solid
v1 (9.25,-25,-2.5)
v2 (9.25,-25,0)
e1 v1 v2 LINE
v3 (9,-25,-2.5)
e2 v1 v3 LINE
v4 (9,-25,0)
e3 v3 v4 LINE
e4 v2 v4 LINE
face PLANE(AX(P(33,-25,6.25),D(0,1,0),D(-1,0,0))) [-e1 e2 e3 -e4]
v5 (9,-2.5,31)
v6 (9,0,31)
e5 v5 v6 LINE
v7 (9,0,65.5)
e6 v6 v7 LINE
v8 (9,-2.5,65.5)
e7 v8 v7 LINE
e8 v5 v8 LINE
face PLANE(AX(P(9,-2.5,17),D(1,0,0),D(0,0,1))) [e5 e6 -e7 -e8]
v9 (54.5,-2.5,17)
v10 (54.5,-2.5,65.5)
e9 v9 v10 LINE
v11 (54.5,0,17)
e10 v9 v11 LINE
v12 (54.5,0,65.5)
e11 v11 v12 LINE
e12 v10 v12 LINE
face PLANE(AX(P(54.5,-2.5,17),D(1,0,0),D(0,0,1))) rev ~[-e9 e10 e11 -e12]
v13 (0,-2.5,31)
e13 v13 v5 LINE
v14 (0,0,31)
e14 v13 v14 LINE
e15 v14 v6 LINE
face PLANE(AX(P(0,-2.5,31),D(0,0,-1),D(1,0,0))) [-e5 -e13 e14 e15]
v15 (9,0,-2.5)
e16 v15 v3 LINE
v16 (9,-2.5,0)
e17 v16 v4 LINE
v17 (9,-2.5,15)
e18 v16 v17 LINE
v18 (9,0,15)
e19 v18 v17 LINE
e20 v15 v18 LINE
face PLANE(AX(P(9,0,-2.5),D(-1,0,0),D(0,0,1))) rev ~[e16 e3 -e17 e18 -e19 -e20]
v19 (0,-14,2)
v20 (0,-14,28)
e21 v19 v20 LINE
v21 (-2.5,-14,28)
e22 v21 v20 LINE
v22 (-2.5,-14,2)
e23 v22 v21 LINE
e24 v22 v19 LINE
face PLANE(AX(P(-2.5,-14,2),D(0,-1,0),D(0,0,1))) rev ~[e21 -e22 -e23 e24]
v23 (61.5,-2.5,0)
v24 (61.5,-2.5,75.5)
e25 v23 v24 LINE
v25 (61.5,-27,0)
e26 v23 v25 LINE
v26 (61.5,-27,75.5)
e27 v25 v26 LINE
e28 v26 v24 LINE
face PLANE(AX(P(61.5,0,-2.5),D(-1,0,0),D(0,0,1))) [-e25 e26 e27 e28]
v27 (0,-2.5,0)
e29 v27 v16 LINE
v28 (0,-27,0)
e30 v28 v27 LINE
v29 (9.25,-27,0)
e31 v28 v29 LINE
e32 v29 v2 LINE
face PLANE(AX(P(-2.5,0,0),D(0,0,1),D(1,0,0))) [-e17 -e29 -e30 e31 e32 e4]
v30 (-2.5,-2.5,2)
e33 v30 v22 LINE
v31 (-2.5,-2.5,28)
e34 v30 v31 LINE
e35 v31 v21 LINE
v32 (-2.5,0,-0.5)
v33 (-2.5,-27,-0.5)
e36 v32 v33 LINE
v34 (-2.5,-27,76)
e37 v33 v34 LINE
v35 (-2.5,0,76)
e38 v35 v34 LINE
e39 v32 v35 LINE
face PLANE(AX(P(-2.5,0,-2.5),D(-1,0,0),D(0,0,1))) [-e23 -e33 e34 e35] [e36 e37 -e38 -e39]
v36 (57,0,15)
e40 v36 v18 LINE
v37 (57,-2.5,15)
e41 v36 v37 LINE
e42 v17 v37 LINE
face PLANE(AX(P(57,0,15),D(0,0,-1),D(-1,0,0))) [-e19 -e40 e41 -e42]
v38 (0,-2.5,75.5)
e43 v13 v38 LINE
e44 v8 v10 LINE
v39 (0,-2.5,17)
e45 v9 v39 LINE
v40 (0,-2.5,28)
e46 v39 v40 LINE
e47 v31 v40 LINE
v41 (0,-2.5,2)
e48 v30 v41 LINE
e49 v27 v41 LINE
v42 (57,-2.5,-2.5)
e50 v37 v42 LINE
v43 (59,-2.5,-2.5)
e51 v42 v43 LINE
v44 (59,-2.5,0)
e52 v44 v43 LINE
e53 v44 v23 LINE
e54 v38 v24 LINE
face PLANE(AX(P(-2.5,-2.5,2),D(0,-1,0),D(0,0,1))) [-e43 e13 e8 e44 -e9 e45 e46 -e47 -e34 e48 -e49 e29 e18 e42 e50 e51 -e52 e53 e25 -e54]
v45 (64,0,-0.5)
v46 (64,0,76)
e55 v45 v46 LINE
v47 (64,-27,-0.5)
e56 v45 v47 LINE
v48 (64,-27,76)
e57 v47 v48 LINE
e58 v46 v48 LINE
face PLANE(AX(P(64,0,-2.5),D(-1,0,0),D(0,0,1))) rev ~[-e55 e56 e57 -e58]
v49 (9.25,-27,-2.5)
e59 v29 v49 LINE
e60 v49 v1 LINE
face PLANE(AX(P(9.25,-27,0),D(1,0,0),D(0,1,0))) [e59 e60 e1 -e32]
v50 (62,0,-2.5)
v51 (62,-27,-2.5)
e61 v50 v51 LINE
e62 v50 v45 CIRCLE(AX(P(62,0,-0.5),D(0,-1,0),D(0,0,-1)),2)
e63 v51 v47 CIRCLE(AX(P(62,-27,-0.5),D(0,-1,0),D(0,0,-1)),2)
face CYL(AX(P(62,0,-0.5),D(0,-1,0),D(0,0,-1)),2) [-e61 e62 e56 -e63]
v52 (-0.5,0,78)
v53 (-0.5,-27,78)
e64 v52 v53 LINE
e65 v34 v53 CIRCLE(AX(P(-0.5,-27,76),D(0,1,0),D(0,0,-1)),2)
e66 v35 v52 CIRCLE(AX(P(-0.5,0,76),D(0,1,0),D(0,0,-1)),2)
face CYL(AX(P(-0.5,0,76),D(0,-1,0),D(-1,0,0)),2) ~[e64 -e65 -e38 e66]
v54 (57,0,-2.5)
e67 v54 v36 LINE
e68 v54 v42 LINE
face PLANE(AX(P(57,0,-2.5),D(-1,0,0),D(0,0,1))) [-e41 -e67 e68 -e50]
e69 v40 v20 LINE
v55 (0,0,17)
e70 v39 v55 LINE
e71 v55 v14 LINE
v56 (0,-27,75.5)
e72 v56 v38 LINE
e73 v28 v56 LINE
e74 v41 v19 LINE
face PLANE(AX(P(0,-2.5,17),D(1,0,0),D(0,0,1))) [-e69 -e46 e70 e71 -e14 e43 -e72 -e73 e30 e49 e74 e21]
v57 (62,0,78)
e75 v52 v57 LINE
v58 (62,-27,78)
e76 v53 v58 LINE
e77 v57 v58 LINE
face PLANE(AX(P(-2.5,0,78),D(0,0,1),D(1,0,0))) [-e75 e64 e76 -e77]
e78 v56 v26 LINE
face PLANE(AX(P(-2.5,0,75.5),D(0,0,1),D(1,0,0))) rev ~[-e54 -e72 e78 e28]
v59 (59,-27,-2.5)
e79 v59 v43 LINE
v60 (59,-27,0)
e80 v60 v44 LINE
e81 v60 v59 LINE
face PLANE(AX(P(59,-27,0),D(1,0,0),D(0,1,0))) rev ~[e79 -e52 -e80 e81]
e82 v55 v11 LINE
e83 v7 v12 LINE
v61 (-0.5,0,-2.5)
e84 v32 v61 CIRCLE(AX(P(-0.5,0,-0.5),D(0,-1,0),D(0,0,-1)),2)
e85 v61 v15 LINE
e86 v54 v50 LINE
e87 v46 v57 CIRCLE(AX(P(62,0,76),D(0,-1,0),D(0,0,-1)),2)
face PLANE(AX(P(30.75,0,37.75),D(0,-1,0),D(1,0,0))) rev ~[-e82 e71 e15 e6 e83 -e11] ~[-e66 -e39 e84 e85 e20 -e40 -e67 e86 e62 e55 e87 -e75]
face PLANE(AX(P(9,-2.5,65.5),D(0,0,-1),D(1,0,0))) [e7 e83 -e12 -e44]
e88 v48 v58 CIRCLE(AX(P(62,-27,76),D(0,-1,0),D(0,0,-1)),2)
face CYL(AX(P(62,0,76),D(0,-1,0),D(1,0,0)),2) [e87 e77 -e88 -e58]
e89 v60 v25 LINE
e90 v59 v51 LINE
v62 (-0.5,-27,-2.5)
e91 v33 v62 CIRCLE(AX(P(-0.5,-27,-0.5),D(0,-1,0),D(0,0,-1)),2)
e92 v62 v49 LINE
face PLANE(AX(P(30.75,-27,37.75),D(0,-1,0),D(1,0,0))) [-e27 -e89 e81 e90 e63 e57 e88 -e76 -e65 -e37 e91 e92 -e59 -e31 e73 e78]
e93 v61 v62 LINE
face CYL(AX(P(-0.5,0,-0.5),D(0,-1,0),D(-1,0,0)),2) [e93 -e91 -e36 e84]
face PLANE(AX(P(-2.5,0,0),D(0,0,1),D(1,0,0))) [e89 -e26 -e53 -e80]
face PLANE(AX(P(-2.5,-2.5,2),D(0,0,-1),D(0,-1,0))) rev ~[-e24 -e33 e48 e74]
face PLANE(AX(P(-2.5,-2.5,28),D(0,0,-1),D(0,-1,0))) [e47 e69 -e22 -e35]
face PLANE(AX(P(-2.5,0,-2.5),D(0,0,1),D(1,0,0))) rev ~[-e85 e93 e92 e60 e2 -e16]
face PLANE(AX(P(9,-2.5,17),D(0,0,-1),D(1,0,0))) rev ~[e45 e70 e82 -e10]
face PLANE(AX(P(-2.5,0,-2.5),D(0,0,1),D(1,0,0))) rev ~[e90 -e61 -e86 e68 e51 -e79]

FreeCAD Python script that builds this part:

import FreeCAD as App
import Part
import Sketcher

V = App.Vector
Q = App.Units.Quantity


def edges_at(feature, points):
    """Names of the edges that pass closest to the given points."""
    edges = feature.Shape.Edges
    near = lambda p: min(range(len(edges)), key=lambda i: edges[i].distToShape(Part.Vertex(*p))[0])
    return sorted({f"Edge{near(p) + 1}" for p in points})


def faces_at(feature, points):
    """Names of the faces that lie closest to the given points."""
    faces = feature.Shape.Faces
    near = lambda p: min(range(len(faces)), key=lambda i: faces[i].distToShape(Part.Vertex(*p))[0])
    return sorted({f"Face{near(p) + 1}" for p in points})


def add_polygon(sketch, points):
    """Adds a closed chain of lines whose ends are joined by coincident constraints."""
    first, n = sketch.GeometryCount, len(points)
    for a, b in zip(points, points[1:] + points[:1]):
        sketch.addGeometry(Part.LineSegment(App.Vector(*a, 0), App.Vector(*b, 0)), False)
    for i in range(n):
        sketch.addConstraint(Sketcher.Constraint("Coincident", first + i, 2, first + (i + 1) % n, 1))

doc = App.newDocument("Part")
params = doc.addObject("Spreadsheet::Sheet", "Params")
for row, (alias, value) in enumerate([
    ("sketch1_width", "66.5 mm"),
    ("sketch1_height", "80.5 mm"),
    ("pad1_length", "27 mm"),
    ("thickness_wall", "2.5 mm"),
    ("fillet_radius", "2 mm"),
    ("sketch2_height", "24.5 mm"),
    ("sketch2_width", "49.75 mm"),
    ("pocket1_length", "25 mm"),
    ("sketch3_width", "45.5 mm"),
    ("sketch3_height", "48.5 mm"),
    ("pocket2_length", "25 mm"),
    ("sketch4_width", "48 mm"),
    ("sketch4_height", "17.5 mm"),
    ("pocket3_length", "25 mm"),
    ("sketch5_height", "26 mm"),
    ("sketch5_width", "11.5 mm"),
    ("pocket4_length", "25 mm"),
    ("sketch6_width", "9 mm"),
    ("sketch6_height", "14 mm"),
    ("pocket5_length", "25 mm"),
], start=1):
    params.set(f"A{row}", alias)
    params.set(f"B{row}", "=" + value)
    params.setAlias(f"B{row}", alias)

body = doc.addObject("PartDesign::Body", "Body")

sketch1 = doc.addObject("Sketcher::SketchObject", "Sketch")
body.addObject(sketch1)
sketch1.AttachmentSupport = (doc.XZ_Plane, [""])
sketch1.MapMode = "FlatFace"
add_polygon(sketch1, [(-2, 78), (-2, -2), (64, -2), (64, 78)])
sketch1.addConstraint(Sketcher.Constraint("Vertical", 0))
sketch1.addConstraint(Sketcher.Constraint("Horizontal", 1))
sketch1.addConstraint(Sketcher.Constraint("Vertical", 2))
sketch1.addConstraint(Sketcher.Constraint("Horizontal", 3))
sketch1.addConstraint(Sketcher.Constraint("DistanceX", 1, 1, 1, 2, Q("66.5 mm")))
sketch1.addConstraint(Sketcher.Constraint("DistanceY", 0, 2, 0, 1, Q("80.5 mm")))
sketch1.addConstraint(Sketcher.Constraint("DistanceX", -1, 1, 1, 2, Q("64 mm")))
sketch1.addConstraint(Sketcher.Constraint("DistanceY", -1, 1, 2, 2, Q("78 mm")))
sketch1.setExpression("Constraints[8]", "Params.sketch1_width")
sketch1.setExpression("Constraints[9]", "Params.sketch1_height")
pad1 = doc.addObject("PartDesign::Pad", "Pad")
body.addObject(pad1)
pad1.Profile = sketch1
pad1.setExpression("Length", "Params.pad1_length")
doc.recompute()

thickness = doc.addObject("PartDesign::Thickness", "Thickness")
body.addObject(thickness)
thickness.Base = (pad1, faces_at(pad1, [(30.75, -27, 37.75)]))
thickness.setExpression("Value", "Params.thickness_wall")
thickness.Reversed = True
thickness.Join = "Arc"
doc.recompute()

fillet = doc.addObject("PartDesign::Fillet", "Fillet")
body.addObject(fillet)
fillet.Base = (thickness, edges_at(thickness, [
    (64, -13.5, 78),
    (-2.5, -13.5, 78),
    (64, -13.5, -2.5),
    (-2.5, -13.5, -2.5),
]))
fillet.setExpression("Radius", "Params.fillet_radius")

sketch2 = doc.addObject("Sketcher::SketchObject", "Sketch001")
body.addObject(sketch2)
sketch2.AttachmentSupport = (doc.XY_Plane, [""])
sketch2.MapMode = "FlatFace"
add_polygon(sketch2, [(9, -2), (9, -27), (59, -27), (59, -2)])
sketch2.addConstraint(Sketcher.Constraint("Vertical", 0))
sketch2.addConstraint(Sketcher.Constraint("Horizontal", 1))
sketch2.addConstraint(Sketcher.Constraint("Vertical", 2))
sketch2.addConstraint(Sketcher.Constraint("Horizontal", 3))
sketch2.addConstraint(Sketcher.Constraint("DistanceY", 0, 2, 0, 1, Q("24.5 mm")))
sketch2.addConstraint(Sketcher.Constraint("DistanceY", 0, 2, -1, 1, Q("27 mm")))
sketch2.addConstraint(Sketcher.Constraint("DistanceX", -1, 1, 1, 2, Q("59 mm")))
sketch2.addConstraint(Sketcher.Constraint("DistanceX", 1, 1, 1, 2, Q("49.75 mm")))
sketch2.setExpression("Constraints[8]", "Params.sketch2_height")
sketch2.setExpression("Constraints[11]", "Params.sketch2_width")
pocket1 = doc.addObject("PartDesign::Pocket", "Pocket")
body.addObject(pocket1)
pocket1.Profile = sketch2
pocket1.setExpression("Length", "Params.pocket1_length")

sketch3 = doc.addObject("Sketcher::SketchObject", "Sketch002")
body.addObject(sketch3)
sketch3.AttachmentSupport = (doc.XZ_Plane, [""])
sketch3.MapMode = "FlatFace"
sketch3.AttachmentOffset = App.Placement(V(0, 0, 2.5), App.Rotation())
add_polygon(sketch3, [(9, 66), (9, 17), (54, 17), (54, 66)])
sketch3.addConstraint(Sketcher.Constraint("Vertical", 0))
sketch3.addConstraint(Sketcher.Constraint("Horizontal", 1))
sketch3.addConstraint(Sketcher.Constraint("Vertical", 2))
sketch3.addConstraint(Sketcher.Constraint("Horizontal", 3))
sketch3.addConstraint(Sketcher.Constraint("DistanceX", 1, 1, 1, 2, Q("45.5 mm")))
sketch3.addConstraint(Sketcher.Constraint("DistanceY", 0, 2, 0, 1, Q("48.5 mm")))
sketch3.addConstraint(Sketcher.Constraint("DistanceX", -1, 1, 0, 2, Q("9 mm")))
sketch3.addConstraint(Sketcher.Constraint("DistanceY", -1, 1, 0, 2, Q("17 mm")))
sketch3.setExpression("Constraints[8]", "Params.sketch3_width")
sketch3.setExpression("Constraints[9]", "Params.sketch3_height")
pocket2 = doc.addObject("PartDesign::Pocket", "Pocket001")
body.addObject(pocket2)
pocket2.Profile = sketch3
pocket2.setExpression("Length", "Params.pocket2_length")

sketch4 = doc.addObject("Sketcher::SketchObject", "Sketch003")
body.addObject(sketch4)
sketch4.AttachmentSupport = (doc.XZ_Plane, [""])
sketch4.MapMode = "FlatFace"
add_polygon(sketch4, [(57, 15), (57, -2), (9, -2), (9, 15)])
sketch4.addConstraint(Sketcher.Constraint("Vertical", 0))
sketch4.addConstraint(Sketcher.Constraint("Horizontal", 1))
sketch4.addConstraint(Sketcher.Constraint("Vertical", 2))
sketch4.addConstraint(Sketcher.Constraint("Horizontal", 3))
sketch4.addConstraint(Sketcher.Constraint("DistanceX", 1, 2, 1, 1, Q("48 mm")))
sketch4.addConstraint(Sketcher.Constraint("DistanceY", 0, 2, 0, 1, Q("17.5 mm")))
sketch4.addConstraint(Sketcher.Constraint("DistanceX", -1, 1, 0, 2, Q("57 mm")))
sketch4.addConstraint(Sketcher.Constraint("DistanceY", -1, 1, 2, 2, Q("15 mm")))
sketch4.setExpression("Constraints[8]", "Params.sketch4_width")
sketch4.setExpression("Constraints[9]", "Params.sketch4_height")
pocket3 = doc.addObject("PartDesign::Pocket", "Pocket002")
body.addObject(pocket3)
pocket3.Profile = sketch4
pocket3.setExpression("Length", "Params.pocket3_length")
pocket3.Reversed = True

sketch5 = doc.addObject("Sketcher::SketchObject", "Sketch004")
body.addObject(sketch5)
sketch5.AttachmentSupport = (doc.YZ_Plane, [""])
sketch5.MapMode = "FlatFace"
sketch5.AttachmentOffset = App.Placement(V(0, 0, -2.5), App.Rotation())
add_polygon(sketch5, [(-2, 28), (-2, 2), (-14, 2), (-14, 28)])
sketch5.addConstraint(Sketcher.Constraint("Vertical", 0))
sketch5.addConstraint(Sketcher.Constraint("Horizontal", 1))
sketch5.addConstraint(Sketcher.Constraint("Vertical", 2))
sketch5.addConstraint(Sketcher.Constraint("Horizontal", 3))
sketch5.addConstraint(Sketcher.Constraint("DistanceY", 0, 2, 0, 1, Q("26 mm")))
sketch5.addConstraint(Sketcher.Constraint("DistanceX", 1, 2, 1, 1, Q("11.5 mm")))
sketch5.addConstraint(Sketcher.Constraint("DistanceY", -1, 1, 0, 2, Q("2 mm")))
sketch5.addConstraint(Sketcher.Constraint("DistanceX", 1, 2, -1, 1, Q("14 mm")))
sketch5.setExpression("Constraints[8]", "Params.sketch5_height")
sketch5.setExpression("Constraints[9]", "Params.sketch5_width")
pocket4 = doc.addObject("PartDesign::Pocket", "Pocket003")
body.addObject(pocket4)
pocket4.Profile = sketch5
pocket4.setExpression("Length", "Params.pocket4_length")
pocket4.Reversed = True

sketch6 = doc.addObject("Sketcher::SketchObject", "Sketch005")
body.addObject(sketch6)
sketch6.AttachmentSupport = (doc.XZ_Plane, [""])
sketch6.MapMode = "FlatFace"
sketch6.AttachmentOffset = App.Placement(V(0, 0, 2.5), App.Rotation())
add_polygon(sketch6, [(0, 31), (0, 17), (9, 17), (9, 31)])
sketch6.addConstraint(Sketcher.Constraint("Vertical", 0))
sketch6.addConstraint(Sketcher.Constraint("Horizontal", 1))
sketch6.addConstraint(Sketcher.Constraint("Vertical", 2))
sketch6.addConstraint(Sketcher.Constraint("Horizontal", 3))
sketch6.addConstraint(Sketcher.Constraint("PointOnObject", 0, 2, -2))
sketch6.addConstraint(Sketcher.Constraint("DistanceX", 1, 1, 1, 2, Q("9 mm")))
sketch6.addConstraint(Sketcher.Constraint("DistanceY", 0, 2, 0, 1, Q("14 mm")))
sketch6.addConstraint(Sketcher.Constraint("DistanceY", -1, 1, 0, 2, Q("17 mm")))
sketch6.setExpression("Constraints[9]", "Params.sketch6_width")
sketch6.setExpression("Constraints[10]", "Params.sketch6_height")
pocket5 = doc.addObject("PartDesign::Pocket", "Pocket004")
body.addObject(pocket5)
pocket5.Profile = sketch6
pocket5.setExpression("Length", "Params.pocket5_length")

doc.recompute()
